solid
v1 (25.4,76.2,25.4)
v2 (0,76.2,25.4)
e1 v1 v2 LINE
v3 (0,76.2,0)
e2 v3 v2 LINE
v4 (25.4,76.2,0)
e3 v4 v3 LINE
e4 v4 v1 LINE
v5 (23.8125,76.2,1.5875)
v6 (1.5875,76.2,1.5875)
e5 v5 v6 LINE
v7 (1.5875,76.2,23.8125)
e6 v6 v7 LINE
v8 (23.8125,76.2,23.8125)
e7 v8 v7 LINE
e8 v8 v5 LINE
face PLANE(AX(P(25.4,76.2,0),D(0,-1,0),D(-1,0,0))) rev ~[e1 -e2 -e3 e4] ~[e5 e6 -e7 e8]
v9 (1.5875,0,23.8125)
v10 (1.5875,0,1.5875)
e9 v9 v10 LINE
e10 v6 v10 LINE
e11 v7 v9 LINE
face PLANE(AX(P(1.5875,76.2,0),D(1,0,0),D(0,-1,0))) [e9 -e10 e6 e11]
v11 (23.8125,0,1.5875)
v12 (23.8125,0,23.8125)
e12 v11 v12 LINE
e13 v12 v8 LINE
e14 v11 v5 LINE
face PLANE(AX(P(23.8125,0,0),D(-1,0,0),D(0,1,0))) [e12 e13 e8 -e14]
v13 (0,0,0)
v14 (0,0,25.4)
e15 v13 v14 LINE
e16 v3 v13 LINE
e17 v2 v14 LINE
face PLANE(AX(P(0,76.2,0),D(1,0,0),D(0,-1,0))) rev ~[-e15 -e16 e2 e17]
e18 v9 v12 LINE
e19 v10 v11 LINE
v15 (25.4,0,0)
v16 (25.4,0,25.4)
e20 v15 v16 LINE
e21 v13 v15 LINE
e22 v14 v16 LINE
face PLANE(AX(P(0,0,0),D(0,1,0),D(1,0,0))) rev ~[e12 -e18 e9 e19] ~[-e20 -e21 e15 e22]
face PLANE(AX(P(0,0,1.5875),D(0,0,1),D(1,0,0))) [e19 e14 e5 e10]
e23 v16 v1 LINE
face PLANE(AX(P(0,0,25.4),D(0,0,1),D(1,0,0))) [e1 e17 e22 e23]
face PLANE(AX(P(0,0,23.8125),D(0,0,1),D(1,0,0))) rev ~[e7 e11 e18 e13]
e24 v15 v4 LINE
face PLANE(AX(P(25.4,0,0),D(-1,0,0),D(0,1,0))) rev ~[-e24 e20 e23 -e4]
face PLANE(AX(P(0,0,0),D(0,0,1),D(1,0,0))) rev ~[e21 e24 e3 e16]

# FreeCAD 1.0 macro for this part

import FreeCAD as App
import Part
import Sketcher
Q = App.Units.Quantity


def faces_at(feature, points):
    """Names of the faces that lie closest to the given points."""
    faces = feature.Shape.Faces
    near = lambda p: min(range(len(faces)), key=lambda i: faces[i].distToShape(Part.Vertex(*p))[0])
    return sorted({f"Face{near(p) + 1}" for p in points})


def add_polygon(sketch, points):
    """Adds a closed chain of lines whose ends are joined by coincident constraints."""
    first, n = sketch.GeometryCount, len(points)
    for a, b in zip(points, points[1:] + points[:1]):
        sketch.addGeometry(Part.LineSegment(App.Vector(*a, 0), App.Vector(*b, 0)), False)
    for i in range(n):
        sketch.addConstraint(Sketcher.Constraint("Coincident", first + i, 2, first + (i + 1) % n, 1))

doc = App.newDocument("Part")
body = doc.addObject("PartDesign::Body", "Body")

# Sketch on XY plane
sketch1 = doc.addObject("Sketcher::SketchObject", "Sketch")
body.addObject(sketch1)
sketch1.AttachmentSupport = (doc.XY_Plane, [""])
sketch1.MapMode = "FlatFace"
add_polygon(sketch1, [(0, 76.2), (0, 0), (25.4, 0), (25.4, 76.2)])  # lines 0-3
sketch1.addConstraint(Sketcher.Constraint("Vertical", 0))
sketch1.addConstraint(Sketcher.Constraint("Horizontal", 1))
sketch1.addConstraint(Sketcher.Constraint("Vertical", 2))
sketch1.addConstraint(Sketcher.Constraint("Horizontal", 3))
sketch1.addConstraint(Sketcher.Constraint("Coincident", 0, 2, -1, 1))
sketch1.addConstraint(Sketcher.Constraint("DistanceX", 1, 1, 1, 2, Q("1 in")))
sketch1.addConstraint(Sketcher.Constraint("DistanceY", 0, 2, 0, 1, Q("3 in")))
pad1 = doc.addObject("PartDesign::Pad", "Pad")
body.addObject(pad1)
pad1.Profile = sketch1
pad1.Length = Q("1 in")
doc.recompute()

thickness = doc.addObject("PartDesign::Thickness", "Thickness")
body.addObject(thickness)
thickness.Base = (pad1, faces_at(pad1, [(16.933, 76.2, 16.933), (8.467, 0, 8.467)]))
thickness.Value = Q("0.0625 in")
thickness.Reversed = True
thickness.Join = "Intersection"

doc.recompute()
